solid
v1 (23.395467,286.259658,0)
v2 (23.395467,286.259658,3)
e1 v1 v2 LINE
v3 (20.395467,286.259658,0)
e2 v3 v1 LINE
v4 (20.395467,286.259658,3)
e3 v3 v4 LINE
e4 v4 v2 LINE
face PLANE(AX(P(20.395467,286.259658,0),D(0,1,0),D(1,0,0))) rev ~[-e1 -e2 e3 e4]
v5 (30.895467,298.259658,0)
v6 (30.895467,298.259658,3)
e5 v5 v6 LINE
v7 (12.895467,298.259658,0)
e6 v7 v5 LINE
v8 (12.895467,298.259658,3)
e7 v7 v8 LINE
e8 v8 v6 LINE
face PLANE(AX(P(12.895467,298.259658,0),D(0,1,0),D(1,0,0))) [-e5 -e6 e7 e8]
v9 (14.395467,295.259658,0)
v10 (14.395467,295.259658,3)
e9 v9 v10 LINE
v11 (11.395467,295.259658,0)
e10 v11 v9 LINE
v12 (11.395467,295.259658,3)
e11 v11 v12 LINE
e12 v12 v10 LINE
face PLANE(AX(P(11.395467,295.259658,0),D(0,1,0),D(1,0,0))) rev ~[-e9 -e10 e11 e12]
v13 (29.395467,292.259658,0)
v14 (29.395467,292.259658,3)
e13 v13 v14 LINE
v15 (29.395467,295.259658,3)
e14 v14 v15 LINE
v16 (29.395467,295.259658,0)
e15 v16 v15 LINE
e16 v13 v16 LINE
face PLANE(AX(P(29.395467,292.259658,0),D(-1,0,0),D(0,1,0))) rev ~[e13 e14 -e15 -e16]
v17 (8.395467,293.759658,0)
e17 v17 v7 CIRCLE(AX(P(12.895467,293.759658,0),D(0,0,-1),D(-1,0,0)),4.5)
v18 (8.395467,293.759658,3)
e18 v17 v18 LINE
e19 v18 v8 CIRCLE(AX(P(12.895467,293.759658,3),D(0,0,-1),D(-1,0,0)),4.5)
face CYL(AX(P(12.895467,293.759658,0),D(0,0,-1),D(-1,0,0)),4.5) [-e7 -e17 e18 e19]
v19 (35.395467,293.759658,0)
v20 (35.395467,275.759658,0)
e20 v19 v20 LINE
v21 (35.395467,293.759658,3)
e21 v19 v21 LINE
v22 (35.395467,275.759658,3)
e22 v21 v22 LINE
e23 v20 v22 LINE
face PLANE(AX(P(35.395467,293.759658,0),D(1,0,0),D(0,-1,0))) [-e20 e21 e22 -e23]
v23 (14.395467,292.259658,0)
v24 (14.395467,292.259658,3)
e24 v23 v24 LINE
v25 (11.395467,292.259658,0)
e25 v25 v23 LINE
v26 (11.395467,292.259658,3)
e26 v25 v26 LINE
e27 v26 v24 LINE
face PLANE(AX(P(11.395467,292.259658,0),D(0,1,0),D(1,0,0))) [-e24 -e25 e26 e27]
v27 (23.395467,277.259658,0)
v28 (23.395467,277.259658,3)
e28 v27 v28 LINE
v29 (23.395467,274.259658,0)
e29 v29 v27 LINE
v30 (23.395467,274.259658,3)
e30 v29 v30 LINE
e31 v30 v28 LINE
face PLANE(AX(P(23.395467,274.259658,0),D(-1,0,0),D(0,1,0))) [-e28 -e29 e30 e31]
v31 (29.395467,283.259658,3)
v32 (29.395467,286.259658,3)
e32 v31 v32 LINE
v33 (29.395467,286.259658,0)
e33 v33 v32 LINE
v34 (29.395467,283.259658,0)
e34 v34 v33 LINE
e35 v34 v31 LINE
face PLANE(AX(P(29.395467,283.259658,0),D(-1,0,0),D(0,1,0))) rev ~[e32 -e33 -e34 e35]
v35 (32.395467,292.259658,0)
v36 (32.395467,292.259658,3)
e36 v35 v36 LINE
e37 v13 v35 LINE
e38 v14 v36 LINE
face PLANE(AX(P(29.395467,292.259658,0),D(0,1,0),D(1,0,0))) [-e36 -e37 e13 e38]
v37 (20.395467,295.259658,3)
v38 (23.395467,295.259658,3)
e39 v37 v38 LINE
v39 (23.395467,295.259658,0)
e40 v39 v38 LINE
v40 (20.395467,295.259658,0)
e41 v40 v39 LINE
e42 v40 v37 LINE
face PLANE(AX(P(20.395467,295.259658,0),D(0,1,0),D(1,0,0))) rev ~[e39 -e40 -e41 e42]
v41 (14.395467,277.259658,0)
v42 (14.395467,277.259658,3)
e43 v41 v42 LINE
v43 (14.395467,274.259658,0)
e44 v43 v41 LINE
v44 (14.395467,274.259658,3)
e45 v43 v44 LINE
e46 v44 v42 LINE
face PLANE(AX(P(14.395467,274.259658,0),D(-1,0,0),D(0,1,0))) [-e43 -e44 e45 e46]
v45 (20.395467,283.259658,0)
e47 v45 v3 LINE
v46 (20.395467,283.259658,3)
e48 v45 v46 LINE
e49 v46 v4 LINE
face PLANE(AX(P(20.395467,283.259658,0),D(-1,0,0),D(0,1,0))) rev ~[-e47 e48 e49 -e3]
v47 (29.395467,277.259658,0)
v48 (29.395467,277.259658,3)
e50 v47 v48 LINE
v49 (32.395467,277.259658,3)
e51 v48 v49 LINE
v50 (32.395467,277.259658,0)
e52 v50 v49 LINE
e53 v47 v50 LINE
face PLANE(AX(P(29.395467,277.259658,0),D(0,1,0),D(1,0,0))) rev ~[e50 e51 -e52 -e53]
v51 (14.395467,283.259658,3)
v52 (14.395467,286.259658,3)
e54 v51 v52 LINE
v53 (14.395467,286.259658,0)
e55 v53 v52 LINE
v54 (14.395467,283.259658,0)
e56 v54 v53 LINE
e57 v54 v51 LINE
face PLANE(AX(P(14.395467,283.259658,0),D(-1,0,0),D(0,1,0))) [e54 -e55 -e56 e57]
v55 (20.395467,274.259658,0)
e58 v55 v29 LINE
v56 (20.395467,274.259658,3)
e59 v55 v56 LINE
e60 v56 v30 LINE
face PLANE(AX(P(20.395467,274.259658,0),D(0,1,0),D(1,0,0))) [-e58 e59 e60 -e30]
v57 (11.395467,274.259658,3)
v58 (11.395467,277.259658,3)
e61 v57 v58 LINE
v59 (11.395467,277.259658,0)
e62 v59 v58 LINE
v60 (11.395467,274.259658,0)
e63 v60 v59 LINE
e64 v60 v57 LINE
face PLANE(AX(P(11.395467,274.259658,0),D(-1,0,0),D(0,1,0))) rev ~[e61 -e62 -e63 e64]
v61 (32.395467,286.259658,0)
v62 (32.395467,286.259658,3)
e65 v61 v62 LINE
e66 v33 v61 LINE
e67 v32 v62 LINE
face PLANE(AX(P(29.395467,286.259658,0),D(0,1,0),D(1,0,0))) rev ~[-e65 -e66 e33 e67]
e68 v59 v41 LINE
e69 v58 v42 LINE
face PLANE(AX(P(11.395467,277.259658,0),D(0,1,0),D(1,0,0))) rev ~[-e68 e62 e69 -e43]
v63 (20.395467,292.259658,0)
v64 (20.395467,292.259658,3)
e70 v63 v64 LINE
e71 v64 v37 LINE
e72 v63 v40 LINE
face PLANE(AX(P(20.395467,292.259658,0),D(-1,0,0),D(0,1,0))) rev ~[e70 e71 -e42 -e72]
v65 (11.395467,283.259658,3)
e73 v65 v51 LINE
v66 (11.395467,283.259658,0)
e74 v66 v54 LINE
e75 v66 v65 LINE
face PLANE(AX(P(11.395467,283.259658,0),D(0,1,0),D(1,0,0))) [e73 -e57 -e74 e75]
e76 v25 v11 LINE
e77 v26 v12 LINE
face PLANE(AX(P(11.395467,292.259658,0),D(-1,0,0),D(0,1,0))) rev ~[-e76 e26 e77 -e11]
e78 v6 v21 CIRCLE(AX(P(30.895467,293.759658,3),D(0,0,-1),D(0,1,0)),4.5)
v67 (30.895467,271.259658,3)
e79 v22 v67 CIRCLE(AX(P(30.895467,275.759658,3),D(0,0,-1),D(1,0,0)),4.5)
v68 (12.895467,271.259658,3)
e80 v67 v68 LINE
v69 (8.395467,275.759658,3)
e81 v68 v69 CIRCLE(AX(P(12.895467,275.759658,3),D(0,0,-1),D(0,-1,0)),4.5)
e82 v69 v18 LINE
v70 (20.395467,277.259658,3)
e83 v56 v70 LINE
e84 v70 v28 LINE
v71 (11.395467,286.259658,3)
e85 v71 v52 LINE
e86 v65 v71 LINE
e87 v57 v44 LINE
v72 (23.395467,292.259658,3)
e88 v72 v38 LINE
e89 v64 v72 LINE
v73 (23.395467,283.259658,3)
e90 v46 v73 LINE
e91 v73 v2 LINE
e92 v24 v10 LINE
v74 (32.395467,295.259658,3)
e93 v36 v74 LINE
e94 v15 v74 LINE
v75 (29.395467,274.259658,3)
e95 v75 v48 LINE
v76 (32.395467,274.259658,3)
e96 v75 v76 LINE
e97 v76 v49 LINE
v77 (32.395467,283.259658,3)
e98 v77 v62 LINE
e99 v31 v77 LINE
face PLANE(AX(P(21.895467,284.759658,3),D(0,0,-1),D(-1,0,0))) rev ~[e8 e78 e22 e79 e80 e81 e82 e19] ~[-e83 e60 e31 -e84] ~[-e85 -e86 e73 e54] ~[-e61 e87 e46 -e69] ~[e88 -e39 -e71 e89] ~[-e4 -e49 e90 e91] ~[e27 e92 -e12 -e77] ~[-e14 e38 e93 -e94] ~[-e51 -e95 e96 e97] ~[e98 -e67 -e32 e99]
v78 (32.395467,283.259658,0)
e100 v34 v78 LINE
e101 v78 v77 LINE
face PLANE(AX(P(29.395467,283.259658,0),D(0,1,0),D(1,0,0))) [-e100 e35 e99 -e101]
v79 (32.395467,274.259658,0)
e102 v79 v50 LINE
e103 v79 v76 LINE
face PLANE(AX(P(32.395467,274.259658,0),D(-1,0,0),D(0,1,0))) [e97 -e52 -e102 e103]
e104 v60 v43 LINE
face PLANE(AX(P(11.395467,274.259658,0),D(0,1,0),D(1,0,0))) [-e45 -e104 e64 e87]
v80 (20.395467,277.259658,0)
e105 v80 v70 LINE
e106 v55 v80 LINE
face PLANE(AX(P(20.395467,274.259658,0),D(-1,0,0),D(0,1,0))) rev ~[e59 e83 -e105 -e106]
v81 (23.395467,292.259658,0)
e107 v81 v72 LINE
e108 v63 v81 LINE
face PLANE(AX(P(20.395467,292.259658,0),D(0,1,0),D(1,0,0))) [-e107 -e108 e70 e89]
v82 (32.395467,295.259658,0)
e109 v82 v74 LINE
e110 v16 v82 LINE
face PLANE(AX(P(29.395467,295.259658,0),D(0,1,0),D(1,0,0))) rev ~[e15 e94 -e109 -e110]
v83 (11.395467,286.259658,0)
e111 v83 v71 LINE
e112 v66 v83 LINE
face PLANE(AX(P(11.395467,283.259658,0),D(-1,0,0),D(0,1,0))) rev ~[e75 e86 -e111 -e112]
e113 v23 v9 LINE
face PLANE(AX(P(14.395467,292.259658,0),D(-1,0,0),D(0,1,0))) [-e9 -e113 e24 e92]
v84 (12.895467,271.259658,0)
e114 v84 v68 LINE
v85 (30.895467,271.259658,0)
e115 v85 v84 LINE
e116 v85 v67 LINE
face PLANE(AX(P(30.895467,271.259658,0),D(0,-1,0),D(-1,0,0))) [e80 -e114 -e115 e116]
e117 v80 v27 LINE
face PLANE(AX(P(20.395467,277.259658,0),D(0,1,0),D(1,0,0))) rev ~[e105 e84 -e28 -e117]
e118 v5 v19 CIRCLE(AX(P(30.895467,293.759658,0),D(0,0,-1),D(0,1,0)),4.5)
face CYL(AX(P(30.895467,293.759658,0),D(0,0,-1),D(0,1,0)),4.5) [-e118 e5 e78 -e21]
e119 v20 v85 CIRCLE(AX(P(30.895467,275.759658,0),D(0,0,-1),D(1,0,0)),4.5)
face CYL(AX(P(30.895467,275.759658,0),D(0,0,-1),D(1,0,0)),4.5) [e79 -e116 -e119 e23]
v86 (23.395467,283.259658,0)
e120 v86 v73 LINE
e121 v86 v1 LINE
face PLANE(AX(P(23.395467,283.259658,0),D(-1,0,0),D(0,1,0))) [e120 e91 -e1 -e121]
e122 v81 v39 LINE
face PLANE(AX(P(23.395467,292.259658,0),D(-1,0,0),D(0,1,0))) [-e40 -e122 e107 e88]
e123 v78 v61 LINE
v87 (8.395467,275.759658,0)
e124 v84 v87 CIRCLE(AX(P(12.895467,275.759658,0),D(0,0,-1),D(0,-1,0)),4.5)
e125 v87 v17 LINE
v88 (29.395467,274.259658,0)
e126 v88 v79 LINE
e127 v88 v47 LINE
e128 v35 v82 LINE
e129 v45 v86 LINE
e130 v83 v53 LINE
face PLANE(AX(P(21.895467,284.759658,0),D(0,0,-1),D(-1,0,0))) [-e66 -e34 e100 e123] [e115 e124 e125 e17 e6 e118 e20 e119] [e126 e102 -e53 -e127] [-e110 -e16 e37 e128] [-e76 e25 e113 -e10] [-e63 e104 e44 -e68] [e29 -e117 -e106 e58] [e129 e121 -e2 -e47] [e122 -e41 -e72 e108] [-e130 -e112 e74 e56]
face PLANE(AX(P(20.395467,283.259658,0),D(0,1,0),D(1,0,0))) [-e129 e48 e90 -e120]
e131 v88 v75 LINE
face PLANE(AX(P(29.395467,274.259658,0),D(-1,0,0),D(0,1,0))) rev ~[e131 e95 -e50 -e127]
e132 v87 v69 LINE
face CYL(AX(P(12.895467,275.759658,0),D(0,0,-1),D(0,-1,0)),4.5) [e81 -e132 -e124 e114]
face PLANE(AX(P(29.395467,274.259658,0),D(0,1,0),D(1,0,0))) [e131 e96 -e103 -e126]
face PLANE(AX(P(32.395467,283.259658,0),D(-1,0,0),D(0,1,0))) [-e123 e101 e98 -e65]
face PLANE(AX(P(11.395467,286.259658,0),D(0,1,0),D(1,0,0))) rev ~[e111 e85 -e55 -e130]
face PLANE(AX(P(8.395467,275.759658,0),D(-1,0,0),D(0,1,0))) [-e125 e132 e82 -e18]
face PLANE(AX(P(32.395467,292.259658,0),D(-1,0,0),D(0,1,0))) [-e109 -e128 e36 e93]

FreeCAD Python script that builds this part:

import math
import FreeCAD as App
import Part
import Sketcher

V = App.Vector
Q = App.Units.Quantity

doc = App.newDocument("Part")
body = doc.addObject("PartDesign::Body", "Body")

# Sketch on XY plane
sketch1 = body.newObject("Sketcher::SketchObject", "Sketch")
sketch1.AttachmentSupport = (doc.getObject("XY_Plane"), [""])
sketch1.MapMode = "FlatFace"
sketch1.addGeometry([
    Part.LineSegment(V(30.9, 298.3, 0), V(12.9, 298.3, 0)),  # 0
    Part.ArcOfCircle(Part.Circle(V(12.9, 293.8, 0), V(0, 0, 1), 4.5), math.radians(90), math.radians(180)),  # 1
    Part.LineSegment(V(8.4, 293.8, 0), V(8.4, 275.8, 0)),  # 2
    Part.ArcOfCircle(Part.Circle(V(12.9, 275.8, 0), V(0, 0, 1), 4.5), math.radians(-180), math.radians(-90)),  # 3
    Part.LineSegment(V(12.9, 271.3, 0), V(30.9, 271.3, 0)),  # 4
    Part.ArcOfCircle(Part.Circle(V(30.9, 275.8, 0), V(0, 0, 1), 4.5), math.radians(-90), math.radians(0)),  # 5
    Part.LineSegment(V(35.4, 275.8, 0), V(35.4, 293.8, 0)),  # 6
    Part.ArcOfCircle(Part.Circle(V(30.9, 293.8, 0), V(0, 0, 1), 4.5), math.radians(0), math.radians(90)),  # 7
    Part.LineSegment(V(29.4, 274.3, 0), V(29.4, 277.3, 0)),  # 8
    Part.LineSegment(V(29.4, 277.3, 0), V(32.4, 277.3, 0)),  # 9
    Part.LineSegment(V(32.4, 277.3, 0), V(32.4, 274.3, 0)),  # 10
    Part.LineSegment(V(32.4, 274.3, 0), V(29.4, 274.3, 0)),  # 11
    Part.LineSegment(V(20.4, 274.3, 0), V(20.4, 277.3, 0)),  # 12
    Part.LineSegment(V(20.4, 277.3, 0), V(23.4, 277.3, 0)),  # 13
    Part.LineSegment(V(23.4, 277.3, 0), V(23.4, 274.3, 0)),  # 14
    Part.LineSegment(V(23.4, 274.3, 0), V(20.4, 274.3, 0)),  # 15
    Part.LineSegment(V(11.4, 274.3, 0), V(11.4, 277.3, 0)),  # 16
    Part.LineSegment(V(11.4, 277.3, 0), V(14.4, 277.3, 0)),  # 17
    Part.LineSegment(V(14.4, 277.3, 0), V(14.4, 274.3, 0)),  # 18
    Part.LineSegment(V(14.4, 274.3, 0), V(11.4, 274.3, 0)),  # 19
    Part.LineSegment(V(29.4, 283.3, 0), V(29.4, 286.3, 0)),  # 20
    Part.LineSegment(V(29.4, 286.3, 0), V(32.4, 286.3, 0)),  # 21
    Part.LineSegment(V(32.4, 286.3, 0), V(32.4, 283.3, 0)),  # 22
    Part.LineSegment(V(32.4, 283.3, 0), V(29.4, 283.3, 0)),  # 23
    Part.LineSegment(V(29.4, 292.3, 0), V(29.4, 295.3, 0)),  # 24
    Part.LineSegment(V(29.4, 295.3, 0), V(32.4, 295.3, 0)),  # 25
    Part.LineSegment(V(32.4, 295.3, 0), V(32.4, 292.3, 0)),  # 26
    Part.LineSegment(V(32.4, 292.3, 0), V(29.4, 292.3, 0)),  # 27
    Part.LineSegment(V(20.4, 283.3, 0), V(20.4, 286.3, 0)),  # 28
    Part.LineSegment(V(20.4, 286.3, 0), V(23.4, 286.3, 0)),  # 29
    Part.LineSegment(V(23.4, 286.3, 0), V(23.4, 283.3, 0)),  # 30
    Part.LineSegment(V(23.4, 283.3, 0), V(20.4, 283.3, 0)),  # 31
    Part.LineSegment(V(11.4, 283.3, 0), V(11.4, 286.3, 0)),  # 32
    Part.LineSegment(V(11.4, 286.3, 0), V(14.4, 286.3, 0)),  # 33
    Part.LineSegment(V(14.4, 286.3, 0), V(14.4, 283.3, 0)),  # 34
    Part.LineSegment(V(14.4, 283.3, 0), V(11.4, 283.3, 0)),  # 35
    Part.LineSegment(V(20.4, 292.3, 0), V(20.4, 295.3, 0)),  # 36
    Part.LineSegment(V(20.4, 295.3, 0), V(23.4, 295.3, 0)),  # 37
    Part.LineSegment(V(23.4, 295.3, 0), V(23.4, 292.3, 0)),  # 38
    Part.LineSegment(V(23.4, 292.3, 0), V(20.4, 292.3, 0)),  # 39
    Part.LineSegment(V(11.4, 292.3, 0), V(11.4, 295.3, 0)),  # 40
    Part.LineSegment(V(11.4, 295.3, 0), V(14.4, 295.3, 0)),  # 41
    Part.LineSegment(V(14.4, 295.3, 0), V(14.4, 292.3, 0)),  # 42
    Part.LineSegment(V(14.4, 292.3, 0), V(11.4, 292.3, 0)),  # 43
], False)
sketch1.addConstraint([
    Sketcher.Constraint("Tangent", 0, 2, 1, 1),
    Sketcher.Constraint("Tangent", 1, 2, 2, 1),
    Sketcher.Constraint("Tangent", 2, 2, 3, 1),
    Sketcher.Constraint("Tangent", 3, 2, 4, 1),
    Sketcher.Constraint("Tangent", 4, 2, 5, 1),
    Sketcher.Constraint("Tangent", 5, 2, 6, 1),
    Sketcher.Constraint("Tangent", 6, 2, 7, 1),
    Sketcher.Constraint("Tangent", 7, 2, 0, 1),
    Sketcher.Constraint("Coincident", 8, 2, 9, 1),
    Sketcher.Constraint("Coincident", 9, 2, 10, 1),
    Sketcher.Constraint("Coincident", 10, 2, 11, 1),
    Sketcher.Constraint("Coincident", 11, 2, 8, 1),
    Sketcher.Constraint("Coincident", 12, 2, 13, 1),
    Sketcher.Constraint("Coincident", 13, 2, 14, 1),
    Sketcher.Constraint("Coincident", 14, 2, 15, 1),
    Sketcher.Constraint("Coincident", 15, 2, 12, 1),
    Sketcher.Constraint("Coincident", 16, 2, 17, 1),
    Sketcher.Constraint("Coincident", 17, 2, 18, 1),
    Sketcher.Constraint("Coincident", 18, 2, 19, 1),
    Sketcher.Constraint("Coincident", 19, 2, 16, 1),
    Sketcher.Constraint("Coincident", 20, 2, 21, 1),
    Sketcher.Constraint("Coincident", 21, 2, 22, 1),
    Sketcher.Constraint("Coincident", 22, 2, 23, 1),
    Sketcher.Constraint("Coincident", 23, 2, 20, 1),
    Sketcher.Constraint("Coincident", 24, 2, 25, 1),
    Sketcher.Constraint("Coincident", 25, 2, 26, 1),
    Sketcher.Constraint("Coincident", 26, 2, 27, 1),
    Sketcher.Constraint("Coincident", 27, 2, 24, 1),
    Sketcher.Constraint("Coincident", 28, 2, 29, 1),
    Sketcher.Constraint("Coincident", 29, 2, 30, 1),
    Sketcher.Constraint("Coincident", 30, 2, 31, 1),
    Sketcher.Constraint("Coincident", 31, 2, 28, 1),
    Sketcher.Constraint("Coincident", 32, 2, 33, 1),
    Sketcher.Constraint("Coincident", 33, 2, 34, 1),
    Sketcher.Constraint("Coincident", 34, 2, 35, 1),
    Sketcher.Constraint("Coincident", 35, 2, 32, 1),
    Sketcher.Constraint("Coincident", 36, 2, 37, 1),
    Sketcher.Constraint("Coincident", 37, 2, 38, 1),
    Sketcher.Constraint("Coincident", 38, 2, 39, 1),
    Sketcher.Constraint("Coincident", 39, 2, 36, 1),
    Sketcher.Constraint("Coincident", 40, 2, 41, 1),
    Sketcher.Constraint("Coincident", 41, 2, 42, 1),
    Sketcher.Constraint("Coincident", 42, 2, 43, 1),
    Sketcher.Constraint("Coincident", 43, 2, 40, 1),
    Sketcher.Constraint("Horizontal", 0),
    Sketcher.Constraint("Vertical", 2),
    Sketcher.Constraint("Horizontal", 4),
    Sketcher.Constraint("Vertical", 6),
    Sketcher.Constraint("Vertical", 8),
    Sketcher.Constraint("Horizontal", 9),
    Sketcher.Constraint("Vertical", 10),
    Sketcher.Constraint("Horizontal", 11),
    Sketcher.Constraint("Vertical", 12),
    Sketcher.Constraint("Horizontal", 13),
    Sketcher.Constraint("Vertical", 14),
    Sketcher.Constraint("Horizontal", 15),
    Sketcher.Constraint("Vertical", 16),
    Sketcher.Constraint("Horizontal", 17),
    Sketcher.Constraint("Vertical", 18),
    Sketcher.Constraint("Horizontal", 19),
    Sketcher.Constraint("Vertical", 20),
    Sketcher.Constraint("Horizontal", 21),
    Sketcher.Constraint("Vertical", 22),
    Sketcher.Constraint("Horizontal", 23),
    Sketcher.Constraint("Vertical", 24),
    Sketcher.Constraint("Horizontal", 25),
    Sketcher.Constraint("Vertical", 26),
    Sketcher.Constraint("Horizontal", 27),
    Sketcher.Constraint("Vertical", 28),
    Sketcher.Constraint("Horizontal", 29),
    Sketcher.Constraint("Vertical", 30),
    Sketcher.Constraint("Horizontal", 31),
    Sketcher.Constraint("Vertical", 32),
    Sketcher.Constraint("Horizontal", 33),
    Sketcher.Constraint("Vertical", 34),
    Sketcher.Constraint("Horizontal", 35),
    Sketcher.Constraint("Vertical", 36),
    Sketcher.Constraint("Horizontal", 37),
    Sketcher.Constraint("Vertical", 38),
    Sketcher.Constraint("Horizontal", 39),
    Sketcher.Constraint("Vertical", 40),
    Sketcher.Constraint("Horizontal", 41),
    Sketcher.Constraint("Vertical", 42),
    Sketcher.Constraint("Horizontal", 43),
    Sketcher.Constraint("Equal", 1, 3),
    Sketcher.Constraint("Equal", 3, 5),
    Sketcher.Constraint("Equal", 5, 7),
    Sketcher.Constraint("Horizontal", 9, 2, 12, 2),
    Sketcher.Constraint("Horizontal", 11, 2, 14, 2),
    Sketcher.Constraint("Horizontal", 13, 2, 16, 2),
    Sketcher.Constraint("Horizontal", 15, 2, 18, 2),
    Sketcher.Constraint("Horizontal", 21, 2, 28, 2),
    Sketcher.Constraint("Horizontal", 23, 2, 30, 2),
    Sketcher.Constraint("Horizontal", 29, 2, 32, 2),
    Sketcher.Constraint("Horizontal", 31, 2, 34, 2),
    Sketcher.Constraint("Horizontal", 25, 2, 36, 2),
    Sketcher.Constraint("Horizontal", 27, 2, 38, 2),
    Sketcher.Constraint("Horizontal", 37, 2, 40, 2),
    Sketcher.Constraint("Horizontal", 39, 2, 42, 2),
    Sketcher.Constraint("Vertical", 11, 2, 20, 2),
    Sketcher.Constraint("Vertical", 10, 2, 21, 2),
    Sketcher.Constraint("Vertical", 23, 2, 24, 2),
    Sketcher.Constraint("Vertical", 22, 2, 25, 2),
    Sketcher.Constraint("Vertical", 15, 2, 28, 2),
    Sketcher.Constraint("Vertical", 14, 2, 29, 2),
    Sketcher.Constraint("Vertical", 19, 2, 32, 2),
    Sketcher.Constraint("Vertical", 18, 2, 33, 2),
    Sketcher.Constraint("Vertical", 31, 2, 36, 2),
    Sketcher.Constraint("Vertical", 30, 2, 37, 2),
    Sketcher.Constraint("Vertical", 35, 2, 40, 2),
    Sketcher.Constraint("Vertical", 34, 2, 41, 2),
    Sketcher.Constraint("Equal", 11, 13),
    Sketcher.Constraint("Equal", 15, 17),
    Sketcher.Constraint("Equal", 4, 2),
    Sketcher.Constraint("Equal", 43, 8),
    Sketcher.Constraint("Equal", 18, 20),
    Sketcher.Constraint("Equal", 22, 24),
    Sketcher.Constraint("Radius", 1, Q("4.5 mm")),
    Sketcher.Constraint("DistanceX", 0, 2, 0, 1, Q("18 mm")),
    Sketcher.Constraint("DistanceX", 9, 1, 9, 2, Q("3 mm")),
    Sketcher.Constraint("DistanceY", 4, 2, 8, 2, Q("6 mm")),
    Sketcher.Constraint("DistanceX", 8, 2, 5, 2, Q("6 mm")),
    Sketcher.Constraint("DistanceX", 12, 2, 8, 2, Q("9 mm")),
    Sketcher.Constraint("DistanceX", 2, 2, 16, 2, Q("3 mm")),
    Sketcher.Constraint("DistanceY", 8, 2, 20, 2, Q("9 mm")),
    Sketcher.Constraint("DistanceY", 24, 2, 7, 2, Q("3 mm")),
    Sketcher.Constraint("DistanceY", -1, 1, 1, 3, Q("293.759658 mm")),
    Sketcher.Constraint("DistanceX", -1, 1, 1, 3, Q("12.895467 mm")),
])
pad1 = body.newObject("PartDesign::Pad", "Pad")
pad1.Profile = sketch1
pad1.Length = 3

doc.recompute()
